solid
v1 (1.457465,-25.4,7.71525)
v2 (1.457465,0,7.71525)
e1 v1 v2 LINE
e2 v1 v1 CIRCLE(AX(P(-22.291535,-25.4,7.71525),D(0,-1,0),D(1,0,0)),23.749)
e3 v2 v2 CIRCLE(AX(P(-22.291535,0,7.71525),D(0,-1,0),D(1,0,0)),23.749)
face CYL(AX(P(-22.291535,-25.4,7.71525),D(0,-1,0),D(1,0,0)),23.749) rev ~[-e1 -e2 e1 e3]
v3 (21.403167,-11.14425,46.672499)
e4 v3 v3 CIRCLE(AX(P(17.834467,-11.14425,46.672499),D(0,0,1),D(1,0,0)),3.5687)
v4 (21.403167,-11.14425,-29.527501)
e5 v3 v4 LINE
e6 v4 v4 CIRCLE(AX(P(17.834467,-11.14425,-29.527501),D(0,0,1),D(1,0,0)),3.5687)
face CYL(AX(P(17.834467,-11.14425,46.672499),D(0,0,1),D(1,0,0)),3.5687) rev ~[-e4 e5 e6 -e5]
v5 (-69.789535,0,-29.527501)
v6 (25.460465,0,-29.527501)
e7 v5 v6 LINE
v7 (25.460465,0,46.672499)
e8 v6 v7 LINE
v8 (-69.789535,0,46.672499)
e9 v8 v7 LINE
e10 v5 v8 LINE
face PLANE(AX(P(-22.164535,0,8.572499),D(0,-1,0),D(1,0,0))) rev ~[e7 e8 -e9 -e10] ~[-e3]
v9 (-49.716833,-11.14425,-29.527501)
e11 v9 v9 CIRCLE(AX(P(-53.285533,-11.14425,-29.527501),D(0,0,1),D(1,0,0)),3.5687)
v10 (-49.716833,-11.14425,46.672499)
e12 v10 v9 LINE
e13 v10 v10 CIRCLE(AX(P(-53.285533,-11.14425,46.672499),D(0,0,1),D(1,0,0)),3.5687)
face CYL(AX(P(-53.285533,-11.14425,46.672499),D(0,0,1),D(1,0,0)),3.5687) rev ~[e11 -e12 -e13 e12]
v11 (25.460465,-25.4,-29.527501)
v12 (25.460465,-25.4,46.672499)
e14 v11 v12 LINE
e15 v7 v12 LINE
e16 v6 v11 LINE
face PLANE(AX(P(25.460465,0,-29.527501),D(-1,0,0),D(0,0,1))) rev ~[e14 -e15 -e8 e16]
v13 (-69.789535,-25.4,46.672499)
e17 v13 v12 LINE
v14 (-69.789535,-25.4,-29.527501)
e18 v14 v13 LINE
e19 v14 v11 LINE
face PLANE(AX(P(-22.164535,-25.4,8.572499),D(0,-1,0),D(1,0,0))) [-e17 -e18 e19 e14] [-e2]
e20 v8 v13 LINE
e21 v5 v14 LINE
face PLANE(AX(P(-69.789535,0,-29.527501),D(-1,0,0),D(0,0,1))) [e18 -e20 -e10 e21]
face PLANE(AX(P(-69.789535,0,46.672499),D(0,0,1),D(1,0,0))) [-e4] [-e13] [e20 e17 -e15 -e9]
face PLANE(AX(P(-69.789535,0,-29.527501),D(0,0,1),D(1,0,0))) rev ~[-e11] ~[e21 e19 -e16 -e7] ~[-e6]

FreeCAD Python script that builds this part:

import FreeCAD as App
import Part
import Sketcher
from FreeCAD import Vector
Q = App.Units.Quantity


def add_polygon(sketch, points):
    """Adds a closed chain of lines whose ends are joined by coincident constraints."""
    first, n = sketch.GeometryCount, len(points)
    for a, b in zip(points, points[1:] + points[:1]):
        sketch.addGeometry(Part.LineSegment(App.Vector(*a, 0), App.Vector(*b, 0)), False)
    for i in range(n):
        sketch.addConstraint(Sketcher.Constraint("Coincident", first + i, 2, first + (i + 1) % n, 1))

doc = App.newDocument("Part")
body = doc.addObject("PartDesign::Body", "Body")

# Sketch on XZ plane
sketch1 = doc.addObject("Sketcher::SketchObject", "Sketch")
body.addObject(sketch1)
sketch1.AttachmentSupport = (doc.XZ_Plane, [""])
sketch1.MapMode = "FlatFace"
add_polygon(sketch1, [(-70, 47), (-70, -30), (25, -30), (25, 47)])  # lines 0-3
sketch1.addConstraint(Sketcher.Constraint("Vertical", 0))
sketch1.addConstraint(Sketcher.Constraint("Horizontal", 1))
sketch1.addConstraint(Sketcher.Constraint("Vertical", 2))
sketch1.addConstraint(Sketcher.Constraint("Horizontal", 3))
sketch1.addConstraint(Sketcher.Constraint("DistanceY", 0, 2, 0, 1, Q("3 in")))
sketch1.addConstraint(Sketcher.Constraint("DistanceX", 1, 1, 1, 2, Q("3.75 in")))
sketch1.addConstraint(Sketcher.Constraint("DistanceY", 0, 2, -1, 1, Q("1.1625 in")))
sketch1.addConstraint(Sketcher.Constraint("DistanceX", 0, 2, -1, 1, Q("69.789535 mm")))
pad1 = doc.addObject("PartDesign::Pad", "Pad")
body.addObject(pad1)
pad1.Profile = sketch1
pad1.Length = Q("1 in")

# Sketch on XZ plane
sketch2 = doc.addObject("Sketcher::SketchObject", "Sketch001")
body.addObject(sketch2)
sketch2.AttachmentSupport = (doc.XZ_Plane, [""])
sketch2.MapMode = "FlatFace"
sketch2.AttachmentOffset = App.Placement(Vector(0, 0, 1 * 25.4), App.Rotation())
sketch2.addGeometry(Part.Circle(Vector(-22, 8, 0), Vector(0, 0, 1), 24), False)
sketch2.addConstraint(Sketcher.Constraint("Diameter", 0, Q("1.87 in")))
sketch2.addConstraint(Sketcher.Constraint("DistanceY", -1, 1, 0, 3, Q("7.71525 mm")))
sketch2.addConstraint(Sketcher.Constraint("DistanceX", 0, 3, -1, 1, Q("22.291535 mm")))
pocket1 = doc.addObject("PartDesign::Pocket", "Pocket")
body.addObject(pocket1)
pocket1.Profile = sketch2
pocket1.Type = "ThroughAll"

# Sketch on XZ plane
sketch3 = doc.addObject("Sketcher::SketchObject", "Sketch002")
body.addObject(sketch3)
sketch3.AttachmentSupport = (doc.XZ_Plane, [""])
sketch3.MapMode = "FlatFace"
sketch3.AttachmentOffset = App.Placement(Vector(0, 0, 1 * 25.4), App.Rotation())
sketch3.addGeometry(Part.Circle(Vector(-22, 8, 0), Vector(0, 0, 1), 24), False)
sketch3.addConstraint(Sketcher.Constraint("Diameter", 0, Q("1.87 in")))
sketch3.addConstraint(Sketcher.Constraint("DistanceY", -1, 1, 0, 3, Q("7.71525 mm")))
sketch3.addConstraint(Sketcher.Constraint("DistanceX", 0, 3, -1, 1, Q("22.291535 mm")))
pocket2 = doc.addObject("PartDesign::Pocket", "Pocket001")
body.addObject(pocket2)
pocket2.Profile = sketch3
pocket2.Type = "ThroughAll"

# Sketch on XY plane
sketch4 = doc.addObject("Sketcher::SketchObject", "Sketch003")
body.addObject(sketch4)
sketch4.AttachmentSupport = (doc.XY_Plane, [""])
sketch4.MapMode = "FlatFace"
sketch4.AttachmentOffset = App.Placement(Vector(0, 0, 1.8375 * 25.4), App.Rotation())
sketch4.addGeometry(Part.Circle(Vector(17.8, -11.1, 0), Vector(0, 0, 1), 3.6), False)
sketch4.addGeometry(Part.Circle(Vector(-53.3, -11.1, 0), Vector(0, 0, 1), 3.6), False)
sketch4.addConstraint(Sketcher.Constraint("Equal", 0, 1))
sketch4.addConstraint(Sketcher.Constraint("Horizontal", 0, 3, 1, 3))
sketch4.addConstraint(Sketcher.Constraint("Diameter", 0, Q("0.281 in")))
sketch4.addConstraint(Sketcher.Constraint("DistanceX", 1, 3, 0, 3, Q("2.8 in")))
sketch4.addConstraint(Sketcher.Constraint("DistanceY", 0, 3, -1, 1, Q("11.14425 mm")))
sketch4.addConstraint(Sketcher.Constraint("DistanceX", -1, 1, 0, 3, Q("17.834467 mm")))
pocket3 = doc.addObject("PartDesign::Pocket", "Pocket002")
body.addObject(pocket3)
pocket3.Profile = sketch4
pocket3.Type = "ThroughAll"

doc.recompute()
